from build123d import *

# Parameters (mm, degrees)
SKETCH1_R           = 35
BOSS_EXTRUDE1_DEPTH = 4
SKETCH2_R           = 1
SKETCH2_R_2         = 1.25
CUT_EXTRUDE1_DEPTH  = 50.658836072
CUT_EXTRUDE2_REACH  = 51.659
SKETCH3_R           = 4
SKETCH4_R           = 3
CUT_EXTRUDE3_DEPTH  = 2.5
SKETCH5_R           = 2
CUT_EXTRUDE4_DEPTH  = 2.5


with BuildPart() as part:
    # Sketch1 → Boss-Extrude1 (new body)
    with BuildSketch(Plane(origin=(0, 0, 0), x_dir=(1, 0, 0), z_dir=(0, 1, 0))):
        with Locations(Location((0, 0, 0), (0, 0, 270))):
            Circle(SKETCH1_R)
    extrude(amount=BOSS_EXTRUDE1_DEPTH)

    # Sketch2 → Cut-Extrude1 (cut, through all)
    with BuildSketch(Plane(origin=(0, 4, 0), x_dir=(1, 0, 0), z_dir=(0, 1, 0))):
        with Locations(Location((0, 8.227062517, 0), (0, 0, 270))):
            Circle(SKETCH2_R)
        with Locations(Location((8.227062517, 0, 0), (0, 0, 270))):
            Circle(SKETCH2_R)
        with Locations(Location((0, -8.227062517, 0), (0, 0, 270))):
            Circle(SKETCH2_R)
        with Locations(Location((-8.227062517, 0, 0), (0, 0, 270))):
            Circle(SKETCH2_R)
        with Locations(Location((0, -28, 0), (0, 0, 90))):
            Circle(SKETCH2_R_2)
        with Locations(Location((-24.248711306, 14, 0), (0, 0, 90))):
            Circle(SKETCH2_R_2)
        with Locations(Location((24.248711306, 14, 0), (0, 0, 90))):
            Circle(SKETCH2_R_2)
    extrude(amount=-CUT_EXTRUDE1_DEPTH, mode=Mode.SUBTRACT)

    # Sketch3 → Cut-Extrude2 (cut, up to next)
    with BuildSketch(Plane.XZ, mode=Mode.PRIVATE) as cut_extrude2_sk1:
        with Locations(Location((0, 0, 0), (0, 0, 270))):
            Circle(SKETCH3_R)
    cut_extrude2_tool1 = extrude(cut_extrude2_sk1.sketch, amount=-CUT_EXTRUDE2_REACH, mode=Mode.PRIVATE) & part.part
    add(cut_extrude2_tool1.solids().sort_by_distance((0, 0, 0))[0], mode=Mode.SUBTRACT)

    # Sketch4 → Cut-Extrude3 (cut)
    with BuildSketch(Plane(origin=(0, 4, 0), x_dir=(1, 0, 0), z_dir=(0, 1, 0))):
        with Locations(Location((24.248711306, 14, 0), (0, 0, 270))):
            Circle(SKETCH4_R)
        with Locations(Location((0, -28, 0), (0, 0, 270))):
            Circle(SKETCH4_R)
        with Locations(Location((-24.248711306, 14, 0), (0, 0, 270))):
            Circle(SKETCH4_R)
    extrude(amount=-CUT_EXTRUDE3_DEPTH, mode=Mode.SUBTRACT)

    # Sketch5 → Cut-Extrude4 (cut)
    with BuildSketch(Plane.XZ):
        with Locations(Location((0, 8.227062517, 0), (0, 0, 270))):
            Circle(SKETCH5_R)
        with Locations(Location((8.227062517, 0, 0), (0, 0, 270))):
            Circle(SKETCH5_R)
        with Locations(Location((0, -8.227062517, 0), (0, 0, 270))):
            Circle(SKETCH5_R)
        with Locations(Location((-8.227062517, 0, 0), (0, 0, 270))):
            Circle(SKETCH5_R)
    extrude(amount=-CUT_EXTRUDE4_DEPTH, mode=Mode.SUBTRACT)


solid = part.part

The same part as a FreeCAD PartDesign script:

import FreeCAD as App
import Part
import Sketcher

doc = App.newDocument("Part")
body = doc.addObject("PartDesign::Body", "Body")

# Sketch on XZ plane
sketch1 = body.newObject("Sketcher::SketchObject", "Sketch")
sketch1.AttachmentSupport = (doc.getObject("XZ_Plane"), [""])
sketch1.MapMode = "FlatFace"
sketch1.addGeometry(Part.Circle(App.Vector(0, 0, 0), App.Vector(0, 0, 1), 35), False)
sketch1.addConstraint(Sketcher.Constraint("Coincident", 0, 3, -1, 1))
sketch1.addConstraint(Sketcher.Constraint("Diameter", 0, 70.0))
pad1 = body.newObject("PartDesign::Pad", "Pad")
pad1.Profile = sketch1
pad1.Length = 4
pad1.Reversed = True

# Sketch on XZ plane
sketch2 = body.newObject("Sketcher::SketchObject", "Sketch001")
sketch2.AttachmentSupport = (doc.getObject("XZ_Plane"), [""])
sketch2.MapMode = "FlatFace"
sketch2.AttachmentOffset = App.Placement(App.Vector(0, 0, -4), App.Rotation())
sketch2.addGeometry(Part.Circle(App.Vector(0, -8.2, 0), App.Vector(0, 0, 1), 1), False)
sketch2.addGeometry(Part.Circle(App.Vector(8.2, 0, 0), App.Vector(0, 0, 1), 1), False)
sketch2.addGeometry(Part.Circle(App.Vector(0, 8.2, 0), App.Vector(0, 0, 1), 1), False)
sketch2.addGeometry(Part.Circle(App.Vector(-8.2, 0, 0), App.Vector(0, 0, 1), 1), False)
sketch2.addGeometry(Part.Circle(App.Vector(0, 28, 0), App.Vector(0, 0, 1), 1.2), False)
sketch2.addGeometry(Part.Circle(App.Vector(-24.2, -14, 0), App.Vector(0, 0, 1), 1.2), False)
sketch2.addGeometry(Part.Circle(App.Vector(24.2, -14, 0), App.Vector(0, 0, 1), 1.2), False)
sketch2.addConstraint(Sketcher.Constraint("Equal", 0, 1))
sketch2.addConstraint(Sketcher.Constraint("Equal", 1, 2))
sketch2.addConstraint(Sketcher.Constraint("Equal", 2, 3))
sketch2.addConstraint(Sketcher.Constraint("Equal", 4, 5))
sketch2.addConstraint(Sketcher.Constraint("Equal", 5, 6))
sketch2.addConstraint(Sketcher.Constraint("Symmetric", 0, 3, 2, 3, -1, 1))
sketch2.addConstraint(Sketcher.Constraint("Symmetric", 1, 3, 3, 3, -1, 1))
sketch2.addConstraint(Sketcher.Constraint("Symmetric", 5, 3, 6, 3, -2))
sketch2.addConstraint(Sketcher.Constraint("PointOnObject", 0, 3, -2))
sketch2.addConstraint(Sketcher.Constraint("PointOnObject", 1, 3, -1))
sketch2.addConstraint(Sketcher.Constraint("PointOnObject", 4, 3, -2))
sketch2.addConstraint(Sketcher.Constraint("Diameter", 0, 2.0))
sketch2.addConstraint(Sketcher.Constraint("Diameter", 4, 2.5))
sketch2.addConstraint(Sketcher.Constraint("DistanceY", -1, 1, 4, 3, 28.0))
sketch2.addConstraint(Sketcher.Constraint("DistanceY", 5, 3, -1, 1, 14.0))
sketch2.addConstraint(Sketcher.Constraint("DistanceX", 5, 3, -1, 1, 24.248711))
sketch2.addConstraint(Sketcher.Constraint("DistanceX", 5, 3, 3, 3, 16.021649))
sketch2.addConstraint(Sketcher.Constraint("DistanceY", 0, 3, -1, 1, 8.227063))
pocket1 = body.newObject("PartDesign::Pocket", "Pocket")
pocket1.Profile = sketch2
pocket1.Type = "ThroughAll"
pocket1.Reversed = True

# Sketch on XZ plane
sketch3 = body.newObject("Sketcher::SketchObject", "Sketch002")
sketch3.AttachmentSupport = (doc.getObject("XZ_Plane"), [""])
sketch3.MapMode = "FlatFace"
sketch3.addGeometry(Part.Circle(App.Vector(0, 0, 0), App.Vector(0, 0, 1), 4), False)
sketch3.addConstraint(Sketcher.Constraint("Coincident", 0, 3, -1, 1))
sketch3.addConstraint(Sketcher.Constraint("Diameter", 0, 8.0))
pocket2 = body.newObject("PartDesign::Pocket", "Pocket001")
pocket2.Profile = sketch3
pocket2.Type = "UpToFirst"

# Sketch on XZ plane
sketch4 = body.newObject("Sketcher::SketchObject", "Sketch003")
sketch4.AttachmentSupport = (doc.getObject("XZ_Plane"), [""])
sketch4.MapMode = "FlatFace"
sketch4.AttachmentOffset = App.Placement(App.Vector(0, 0, -4), App.Rotation())
sketch4.addGeometry(Part.Circle(App.Vector(24.2, -14, 0), App.Vector(0, 0, 1), 3), False)
sketch4.addGeometry(Part.Circle(App.Vector(0, 28, 0), App.Vector(0, 0, 1), 3), False)
sketch4.addGeometry(Part.Circle(App.Vector(-24.2, -14, 0), App.Vector(0, 0, 1), 3), False)
sketch4.addConstraint(Sketcher.Constraint("Equal", 0, 1))
sketch4.addConstraint(Sketcher.Constraint("Equal", 1, 2))
sketch4.addConstraint(Sketcher.Constraint("Symmetric", 0, 3, 2, 3, -2))
sketch4.addConstraint(Sketcher.Constraint("PointOnObject", 1, 3, -2))
sketch4.addConstraint(Sketcher.Constraint("Diameter", 0, 6.0))
sketch4.addConstraint(Sketcher.Constraint("DistanceY", 0, 3, -1, 1, 14.0))
sketch4.addConstraint(Sketcher.Constraint("DistanceY", -1, 1, 1, 3, 28.0))
sketch4.addConstraint(Sketcher.Constraint("DistanceX", -1, 1, 0, 3, 24.248711))
pocket3 = body.newObject("PartDesign::Pocket", "Pocket002")
pocket3.Profile = sketch4
pocket3.Length = 2.5
pocket3.Reversed = True

# Sketch on XZ plane
sketch5 = body.newObject("Sketcher::SketchObject", "Sketch004")
sketch5.AttachmentSupport = (doc.getObject("XZ_Plane"), [""])
sketch5.MapMode = "FlatFace"
sketch5.addGeometry(Part.Circle(App.Vector(0, 8.2, 0), App.Vector(0, 0, 1), 2), False)
sketch5.addGeometry(Part.Circle(App.Vector(8.2, 0, 0), App.Vector(0, 0, 1), 2), False)
sketch5.addGeometry(Part.Circle(App.Vector(0, -8.2, 0), App.Vector(0, 0, 1), 2), False)
sketch5.addGeometry(Part.Circle(App.Vector(-8.2, 0, 0), App.Vector(0, 0, 1), 2), False)
sketch5.addConstraint(Sketcher.Constraint("Equal", 0, 1))
sketch5.addConstraint(Sketcher.Constraint("Equal", 1, 2))
sketch5.addConstraint(Sketcher.Constraint("Equal", 2, 3))
sketch5.addConstraint(Sketcher.Constraint("Symmetric", 0, 3, 2, 3, -1, 1))
sketch5.addConstraint(Sketcher.Constraint("Symmetric", 1, 3, 3, 3, -1, 1))
sketch5.addConstraint(Sketcher.Constraint("PointOnObject", 0, 3, -2))
sketch5.addConstraint(Sketcher.Constraint("PointOnObject", 1, 3, -1))
sketch5.addConstraint(Sketcher.Constraint("Diameter", 0, 4.0))
sketch5.addConstraint(Sketcher.Constraint("DistanceY", -1, 1, 0, 3, 8.227063))
sketch5.addConstraint(Sketcher.Constraint("DistanceX", -1, 1, 1, 3, 8.227063))
pocket4 = body.newObject("PartDesign::Pocket", "Pocket003")
pocket4.Profile = sketch5
pocket4.Length = 2.5

doc.recompute()
